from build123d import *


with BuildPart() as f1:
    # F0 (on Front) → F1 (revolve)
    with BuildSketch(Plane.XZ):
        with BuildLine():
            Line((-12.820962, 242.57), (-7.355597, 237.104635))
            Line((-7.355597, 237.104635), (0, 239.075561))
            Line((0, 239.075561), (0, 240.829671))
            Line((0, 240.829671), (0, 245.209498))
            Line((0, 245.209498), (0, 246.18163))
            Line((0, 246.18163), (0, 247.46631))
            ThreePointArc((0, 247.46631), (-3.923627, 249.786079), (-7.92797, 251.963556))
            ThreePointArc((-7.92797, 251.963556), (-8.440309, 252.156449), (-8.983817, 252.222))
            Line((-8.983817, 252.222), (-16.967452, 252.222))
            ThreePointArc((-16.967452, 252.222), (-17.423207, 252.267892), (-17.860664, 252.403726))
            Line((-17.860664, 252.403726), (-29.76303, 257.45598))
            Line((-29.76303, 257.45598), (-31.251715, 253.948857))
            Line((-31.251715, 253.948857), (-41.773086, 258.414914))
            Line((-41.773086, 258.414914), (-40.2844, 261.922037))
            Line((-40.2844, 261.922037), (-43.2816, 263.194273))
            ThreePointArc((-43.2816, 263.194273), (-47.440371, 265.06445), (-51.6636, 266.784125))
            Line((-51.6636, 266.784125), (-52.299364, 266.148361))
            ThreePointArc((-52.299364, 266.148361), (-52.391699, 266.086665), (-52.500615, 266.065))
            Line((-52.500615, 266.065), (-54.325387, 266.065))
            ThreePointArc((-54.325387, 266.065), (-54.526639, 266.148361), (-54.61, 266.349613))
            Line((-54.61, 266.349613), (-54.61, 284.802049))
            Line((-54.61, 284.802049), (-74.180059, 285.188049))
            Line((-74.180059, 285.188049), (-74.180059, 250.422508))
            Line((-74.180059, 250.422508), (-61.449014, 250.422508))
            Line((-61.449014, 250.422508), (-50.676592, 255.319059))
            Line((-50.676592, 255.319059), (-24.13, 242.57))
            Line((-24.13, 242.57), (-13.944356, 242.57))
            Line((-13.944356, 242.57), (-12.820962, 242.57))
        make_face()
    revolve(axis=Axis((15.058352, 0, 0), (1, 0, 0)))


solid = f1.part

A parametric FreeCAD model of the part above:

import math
import FreeCAD as App
import Part
import Sketcher

V = App.Vector
Q = App.Units.Quantity

doc = App.newDocument("Part")
params = doc.addObject("Spreadsheet::Sheet", "Params")
for row, (alias, value) in enumerate([
    ("sketch1_radius", "0.09 in"),
    ("sketch1_length", "0.15 in"),
    ("sketch1_length2", "0.45 in"),
    ("revolution_angle", "360 deg"),
], start=1):
    params.set(f"A{row}", alias)
    params.set(f"B{row}", "=" + value)
    params.setAlias(f"B{row}", alias)

body = doc.addObject("PartDesign::Body", "Body")

# Sketch on XZ plane
sketch1 = body.newObject("Sketcher::SketchObject", "Sketch")
sketch1.AttachmentSupport = (doc.getObject("XZ_Plane"), [""])
sketch1.MapMode = "FlatFace"
sketch1.addGeometry(Part.LineSegment(V(-12.820962, 242.57, 0), V(-7.355597, 237.104635, 0)), False)
sketch1.addGeometry(Part.LineSegment(V(-7.355597, 237.104635, 0), V(0, 239.075561, 0)), False)
sketch1.addGeometry(Part.LineSegment(V(0, 239.075561, 0), V(0, 247.46631, 0)), False)
sketch1.addGeometry(Part.ArcOfCircle(Part.Circle(V(-66.586367, 139.321068, 0), V(0, 0, 1), 127.000541), math.radians(58.378877), math.radians(62.491825)), False)
sketch1.addGeometry(Part.ArcOfCircle(Part.Circle(V(-8.983819, 249.93599, 0), V(0, 0, 1), 2.28601), math.radians(62.491882), math.radians(89.999939)), False)
sketch1.addGeometry(Part.LineSegment(V(-8.983817, 252.222, 0), V(-16.967452, 252.222, 0)), False)
sketch1.addGeometry(Part.ArcOfCircle(Part.Circle(V(-16.967453, 254.507999, 0), V(0, 0, 1), 2.285999), math.radians(-113.000011), math.radians(-89.999985)), False)
sketch1.addGeometry(Part.LineSegment(V(-17.860664, 252.403726, 0), V(-29.76303, 257.45598, 0)), False)
sketch1.addGeometry(Part.LineSegment(V(-29.76303, 257.45598, 0), V(-31.251715, 253.948857, 0)), False)
sketch1.addGeometry(Part.LineSegment(V(-31.251715, 253.948857, 0), V(-41.773086, 258.414914, 0)), False)
sketch1.addGeometry(Part.LineSegment(V(-41.773086, 258.414914, 0), V(-40.2844, 261.922037, 0)), False)
sketch1.addGeometry(Part.LineSegment(V(-40.2844, 261.922037, 0), V(-43.2816, 263.194273, 0)), False)
sketch1.addGeometry(Part.ArcOfCircle(Part.Circle(V(-97.439341, 148.321097, 0), V(0, 0, 1), 126.999636), math.radians(64.758147), math.radians(68.872784)), False)
sketch1.addGeometry(Part.LineSegment(V(-51.6636, 266.784125, 0), V(-52.299364, 266.148361, 0)), False)
sketch1.addGeometry(Part.ArcOfCircle(Part.Circle(V(-52.500616, 266.349615, 0), V(0, 0, 1), 0.284615), math.radians(-89.999725), math.radians(-45.000224)), False)
sketch1.addGeometry(Part.LineSegment(V(-52.500615, 266.065, 0), V(-54.325387, 266.065, 0)), False)
sketch1.addGeometry(Part.ArcOfCircle(Part.Circle(V(-54.325388, 266.349612, 0), V(0, 0, 1), 0.284612), math.radians(179.99985), math.radians(270.00015)), False)
sketch1.addGeometry(Part.LineSegment(V(-54.61, 266.349613, 0), V(-54.61, 284.802049, 0)), False)
sketch1.addGeometry(Part.LineSegment(V(-54.61, 284.802049, 0), V(-74.180059, 285.188049, 0)), False)
sketch1.addGeometry(Part.LineSegment(V(-74.180059, 285.188049, 0), V(-74.180059, 250.422508, 0)), False)
sketch1.addGeometry(Part.LineSegment(V(-74.180059, 250.422508, 0), V(-61.449014, 250.422508, 0)), False)
sketch1.addGeometry(Part.LineSegment(V(-61.449014, 250.422508, 0), V(-50.676592, 255.319059, 0)), False)
sketch1.addGeometry(Part.LineSegment(V(-50.676592, 255.319059, 0), V(-24.13, 242.57, 0)), False)
sketch1.addGeometry(Part.LineSegment(V(-24.13, 242.57, 0), V(-12.820962, 242.57, 0)), False)
sketch1.addConstraint(Sketcher.Constraint("Coincident", 0, 2, 1, 1))
sketch1.addConstraint(Sketcher.Constraint("Coincident", 1, 2, 2, 1))
sketch1.addConstraint(Sketcher.Constraint("Coincident", 2, 2, 3, 1))
sketch1.addConstraint(Sketcher.Constraint("Tangent", 3, 2, 4, 1))
sketch1.addConstraint(Sketcher.Constraint("Tangent", 4, 2, 5, 1))
sketch1.addConstraint(Sketcher.Constraint("Tangent", 5, 2, 6, 2))
sketch1.addConstraint(Sketcher.Constraint("Tangent", 6, 1, 7, 1))
sketch1.addConstraint(Sketcher.Constraint("Coincident", 7, 2, 8, 1))
sketch1.addConstraint(Sketcher.Constraint("Coincident", 8, 2, 9, 1))
sketch1.addConstraint(Sketcher.Constraint("Coincident", 9, 2, 10, 1))
sketch1.addConstraint(Sketcher.Constraint("Coincident", 10, 2, 11, 1))
sketch1.addConstraint(Sketcher.Constraint("Coincident", 11, 2, 12, 1))
sketch1.addConstraint(Sketcher.Constraint("Coincident", 12, 2, 13, 1))
sketch1.addConstraint(Sketcher.Constraint("Coincident", 13, 2, 14, 2))
sketch1.addConstraint(Sketcher.Constraint("Coincident", 14, 1, 15, 1))
sketch1.addConstraint(Sketcher.Constraint("Coincident", 15, 2, 16, 2))
sketch1.addConstraint(Sketcher.Constraint("Coincident", 16, 1, 17, 1))
sketch1.addConstraint(Sketcher.Constraint("Coincident", 17, 2, 18, 1))
sketch1.addConstraint(Sketcher.Constraint("Coincident", 18, 2, 19, 1))
sketch1.addConstraint(Sketcher.Constraint("Coincident", 19, 2, 20, 1))
sketch1.addConstraint(Sketcher.Constraint("Coincident", 20, 2, 21, 1))
sketch1.addConstraint(Sketcher.Constraint("Coincident", 21, 2, 22, 1))
sketch1.addConstraint(Sketcher.Constraint("Coincident", 22, 2, 23, 1))
sketch1.addConstraint(Sketcher.Constraint("Coincident", 23, 2, 0, 1))
sketch1.addConstraint(Sketcher.Constraint("Vertical", 2))
sketch1.addConstraint(Sketcher.Constraint("Horizontal", 5))
sketch1.addConstraint(Sketcher.Constraint("Horizontal", 15))
sketch1.addConstraint(Sketcher.Constraint("Vertical", 17))
sketch1.addConstraint(Sketcher.Constraint("Vertical", 19))
sketch1.addConstraint(Sketcher.Constraint("Horizontal", 20))
sketch1.addConstraint(Sketcher.Constraint("Horizontal", 23))
sketch1.addConstraint(Sketcher.Constraint("PointOnObject", 1, 2, -2))
sketch1.addConstraint(Sketcher.Constraint("Perpendicular", 7, 8))
sketch1.addConstraint(Sketcher.Constraint("Perpendicular", 8, 9))
sketch1.addConstraint(Sketcher.Constraint("Perpendicular", 9, 10))
sketch1.addConstraint(Sketcher.Constraint("Perpendicular", 10, 11))
sketch1.addConstraint(Sketcher.Constraint("Perpendicular", 0, 13))
sketch1.addConstraint(Sketcher.Constraint("Horizontal", 14, 3, 16, 1))
sketch1.addConstraint(Sketcher.Constraint("Vertical", 16, 3, 15, 2))
sketch1.addConstraint(Sketcher.Constraint("Equal", 8, 10))
sketch1.addConstraint(Sketcher.Constraint("Radius", 6, Q("0.09 in")))
sketch1.addConstraint(Sketcher.Constraint("Angle", 0, Q("-45 deg")))
sketch1.addConstraint(Sketcher.Constraint("Angle", 1, Q("14.999998 deg")))
sketch1.addConstraint(Sketcher.Constraint("Angle", 7, Q("157.000003 deg")))
sketch1.addConstraint(Sketcher.Constraint("Distance", 8, Q("0.15 in")))
sketch1.addConstraint(Sketcher.Constraint("Distance", 9, Q("0.45 in")))
sketch1.addConstraint(Sketcher.Constraint("DistanceY", -1, 1, 6, 3, Q("10.02 in")))
sketch1.addConstraint(Sketcher.Constraint("DistanceX", 16, 1, -1, 1, Q("2.15 in")))
sketch1.addConstraint(Sketcher.Constraint("DistanceX", 22, 2, -1, 1, Q("0.95 in")))
sketch1.addConstraint(Sketcher.Constraint("DistanceY", -1, 1, 22, 2, Q("9.55 in")))
sketch1.addConstraint(Sketcher.Constraint("DistanceX", 12, 2, 11, 2, Q("0.33 in")))
sketch1.addConstraint(Sketcher.Constraint("DistanceX", 10, 2, -1, 1, Q("1.586 in")))
sketch1.addConstraint(Sketcher.Constraint("DistanceX", 11, 2, -1, 1, Q("1.704 in")))
sketch1.addConstraint(Sketcher.Constraint("DistanceY", -1, 1, 14, 1, Q("10.475 in")))
sketch1.addConstraint(Sketcher.Constraint("Radius", 3, 127.000541))
sketch1.addConstraint(Sketcher.Constraint("Radius", 4, 2.28601))
sketch1.addConstraint(Sketcher.Constraint("Radius", 12, 126.999636))
sketch1.addConstraint(Sketcher.Constraint("Radius", 14, 0.284615))
sketch1.addConstraint(Sketcher.Constraint("Radius", 16, 0.284612))
sketch1.addConstraint(Sketcher.Constraint("DistanceX", 15, 2, 15, 1, 1.824772))
sketch1.addConstraint(Sketcher.Constraint("DistanceY", 2, 1, 2, 2, 8.390749))
sketch1.addConstraint(Sketcher.Constraint("DistanceY", 19, 2, 19, 1, 34.765541))
sketch1.addConstraint(Sketcher.Constraint("DistanceX", 8, 2, 4, 2, 22.267898))
sketch1.addConstraint(Sketcher.Constraint("DistanceY", 9, 2, 14, 3, 7.934701))
sketch1.addConstraint(Sketcher.Constraint("DistanceY", 17, 2, 18, 2, 0.386))
sketch1.addConstraint(Sketcher.Constraint("DistanceX", 20, 2, 14, 1, 8.948399))
sketch1.addConstraint(Sketcher.Constraint("Distance", 21, 11.833059))
sketch1.addConstraint(Sketcher.Constraint("Distance", 22, 29.449279))
sketch1.addConstraint(Sketcher.Constraint("DistanceX", 20, 1, 20, 2, 12.731045))
sketch1.addConstraint(Sketcher.Constraint("DistanceX", 23, 1, 23, 2, 11.309038))
sketch1.addConstraint(Sketcher.Constraint("DistanceY", 17, 1, 17, 2, 18.452436))
sketch1.addConstraint(Sketcher.Constraint("DistanceY", -1, 1, 3, 3, 139.321068))
sketch1.addConstraint(Sketcher.Constraint("DistanceX", 12, 3, -1, 1, 97.439341))
sketch1.addConstraint(Sketcher.Constraint("DistanceY", -1, 1, 13, 2, 266.148361))
sketch1.setExpression("Constraints[40]", "Params.sketch1_radius")
sketch1.setExpression("Constraints[44]", "Params.sketch1_length")
sketch1.setExpression("Constraints[45]", "Params.sketch1_length2")
revolution = body.newObject("PartDesign::Revolution", "Revolution")
revolution.Profile = sketch1
revolution.ReferenceAxis = (sketch1, ["H_Axis"])
revolution.setExpression("Angle", "Params.revolution_angle")

doc.recompute()
